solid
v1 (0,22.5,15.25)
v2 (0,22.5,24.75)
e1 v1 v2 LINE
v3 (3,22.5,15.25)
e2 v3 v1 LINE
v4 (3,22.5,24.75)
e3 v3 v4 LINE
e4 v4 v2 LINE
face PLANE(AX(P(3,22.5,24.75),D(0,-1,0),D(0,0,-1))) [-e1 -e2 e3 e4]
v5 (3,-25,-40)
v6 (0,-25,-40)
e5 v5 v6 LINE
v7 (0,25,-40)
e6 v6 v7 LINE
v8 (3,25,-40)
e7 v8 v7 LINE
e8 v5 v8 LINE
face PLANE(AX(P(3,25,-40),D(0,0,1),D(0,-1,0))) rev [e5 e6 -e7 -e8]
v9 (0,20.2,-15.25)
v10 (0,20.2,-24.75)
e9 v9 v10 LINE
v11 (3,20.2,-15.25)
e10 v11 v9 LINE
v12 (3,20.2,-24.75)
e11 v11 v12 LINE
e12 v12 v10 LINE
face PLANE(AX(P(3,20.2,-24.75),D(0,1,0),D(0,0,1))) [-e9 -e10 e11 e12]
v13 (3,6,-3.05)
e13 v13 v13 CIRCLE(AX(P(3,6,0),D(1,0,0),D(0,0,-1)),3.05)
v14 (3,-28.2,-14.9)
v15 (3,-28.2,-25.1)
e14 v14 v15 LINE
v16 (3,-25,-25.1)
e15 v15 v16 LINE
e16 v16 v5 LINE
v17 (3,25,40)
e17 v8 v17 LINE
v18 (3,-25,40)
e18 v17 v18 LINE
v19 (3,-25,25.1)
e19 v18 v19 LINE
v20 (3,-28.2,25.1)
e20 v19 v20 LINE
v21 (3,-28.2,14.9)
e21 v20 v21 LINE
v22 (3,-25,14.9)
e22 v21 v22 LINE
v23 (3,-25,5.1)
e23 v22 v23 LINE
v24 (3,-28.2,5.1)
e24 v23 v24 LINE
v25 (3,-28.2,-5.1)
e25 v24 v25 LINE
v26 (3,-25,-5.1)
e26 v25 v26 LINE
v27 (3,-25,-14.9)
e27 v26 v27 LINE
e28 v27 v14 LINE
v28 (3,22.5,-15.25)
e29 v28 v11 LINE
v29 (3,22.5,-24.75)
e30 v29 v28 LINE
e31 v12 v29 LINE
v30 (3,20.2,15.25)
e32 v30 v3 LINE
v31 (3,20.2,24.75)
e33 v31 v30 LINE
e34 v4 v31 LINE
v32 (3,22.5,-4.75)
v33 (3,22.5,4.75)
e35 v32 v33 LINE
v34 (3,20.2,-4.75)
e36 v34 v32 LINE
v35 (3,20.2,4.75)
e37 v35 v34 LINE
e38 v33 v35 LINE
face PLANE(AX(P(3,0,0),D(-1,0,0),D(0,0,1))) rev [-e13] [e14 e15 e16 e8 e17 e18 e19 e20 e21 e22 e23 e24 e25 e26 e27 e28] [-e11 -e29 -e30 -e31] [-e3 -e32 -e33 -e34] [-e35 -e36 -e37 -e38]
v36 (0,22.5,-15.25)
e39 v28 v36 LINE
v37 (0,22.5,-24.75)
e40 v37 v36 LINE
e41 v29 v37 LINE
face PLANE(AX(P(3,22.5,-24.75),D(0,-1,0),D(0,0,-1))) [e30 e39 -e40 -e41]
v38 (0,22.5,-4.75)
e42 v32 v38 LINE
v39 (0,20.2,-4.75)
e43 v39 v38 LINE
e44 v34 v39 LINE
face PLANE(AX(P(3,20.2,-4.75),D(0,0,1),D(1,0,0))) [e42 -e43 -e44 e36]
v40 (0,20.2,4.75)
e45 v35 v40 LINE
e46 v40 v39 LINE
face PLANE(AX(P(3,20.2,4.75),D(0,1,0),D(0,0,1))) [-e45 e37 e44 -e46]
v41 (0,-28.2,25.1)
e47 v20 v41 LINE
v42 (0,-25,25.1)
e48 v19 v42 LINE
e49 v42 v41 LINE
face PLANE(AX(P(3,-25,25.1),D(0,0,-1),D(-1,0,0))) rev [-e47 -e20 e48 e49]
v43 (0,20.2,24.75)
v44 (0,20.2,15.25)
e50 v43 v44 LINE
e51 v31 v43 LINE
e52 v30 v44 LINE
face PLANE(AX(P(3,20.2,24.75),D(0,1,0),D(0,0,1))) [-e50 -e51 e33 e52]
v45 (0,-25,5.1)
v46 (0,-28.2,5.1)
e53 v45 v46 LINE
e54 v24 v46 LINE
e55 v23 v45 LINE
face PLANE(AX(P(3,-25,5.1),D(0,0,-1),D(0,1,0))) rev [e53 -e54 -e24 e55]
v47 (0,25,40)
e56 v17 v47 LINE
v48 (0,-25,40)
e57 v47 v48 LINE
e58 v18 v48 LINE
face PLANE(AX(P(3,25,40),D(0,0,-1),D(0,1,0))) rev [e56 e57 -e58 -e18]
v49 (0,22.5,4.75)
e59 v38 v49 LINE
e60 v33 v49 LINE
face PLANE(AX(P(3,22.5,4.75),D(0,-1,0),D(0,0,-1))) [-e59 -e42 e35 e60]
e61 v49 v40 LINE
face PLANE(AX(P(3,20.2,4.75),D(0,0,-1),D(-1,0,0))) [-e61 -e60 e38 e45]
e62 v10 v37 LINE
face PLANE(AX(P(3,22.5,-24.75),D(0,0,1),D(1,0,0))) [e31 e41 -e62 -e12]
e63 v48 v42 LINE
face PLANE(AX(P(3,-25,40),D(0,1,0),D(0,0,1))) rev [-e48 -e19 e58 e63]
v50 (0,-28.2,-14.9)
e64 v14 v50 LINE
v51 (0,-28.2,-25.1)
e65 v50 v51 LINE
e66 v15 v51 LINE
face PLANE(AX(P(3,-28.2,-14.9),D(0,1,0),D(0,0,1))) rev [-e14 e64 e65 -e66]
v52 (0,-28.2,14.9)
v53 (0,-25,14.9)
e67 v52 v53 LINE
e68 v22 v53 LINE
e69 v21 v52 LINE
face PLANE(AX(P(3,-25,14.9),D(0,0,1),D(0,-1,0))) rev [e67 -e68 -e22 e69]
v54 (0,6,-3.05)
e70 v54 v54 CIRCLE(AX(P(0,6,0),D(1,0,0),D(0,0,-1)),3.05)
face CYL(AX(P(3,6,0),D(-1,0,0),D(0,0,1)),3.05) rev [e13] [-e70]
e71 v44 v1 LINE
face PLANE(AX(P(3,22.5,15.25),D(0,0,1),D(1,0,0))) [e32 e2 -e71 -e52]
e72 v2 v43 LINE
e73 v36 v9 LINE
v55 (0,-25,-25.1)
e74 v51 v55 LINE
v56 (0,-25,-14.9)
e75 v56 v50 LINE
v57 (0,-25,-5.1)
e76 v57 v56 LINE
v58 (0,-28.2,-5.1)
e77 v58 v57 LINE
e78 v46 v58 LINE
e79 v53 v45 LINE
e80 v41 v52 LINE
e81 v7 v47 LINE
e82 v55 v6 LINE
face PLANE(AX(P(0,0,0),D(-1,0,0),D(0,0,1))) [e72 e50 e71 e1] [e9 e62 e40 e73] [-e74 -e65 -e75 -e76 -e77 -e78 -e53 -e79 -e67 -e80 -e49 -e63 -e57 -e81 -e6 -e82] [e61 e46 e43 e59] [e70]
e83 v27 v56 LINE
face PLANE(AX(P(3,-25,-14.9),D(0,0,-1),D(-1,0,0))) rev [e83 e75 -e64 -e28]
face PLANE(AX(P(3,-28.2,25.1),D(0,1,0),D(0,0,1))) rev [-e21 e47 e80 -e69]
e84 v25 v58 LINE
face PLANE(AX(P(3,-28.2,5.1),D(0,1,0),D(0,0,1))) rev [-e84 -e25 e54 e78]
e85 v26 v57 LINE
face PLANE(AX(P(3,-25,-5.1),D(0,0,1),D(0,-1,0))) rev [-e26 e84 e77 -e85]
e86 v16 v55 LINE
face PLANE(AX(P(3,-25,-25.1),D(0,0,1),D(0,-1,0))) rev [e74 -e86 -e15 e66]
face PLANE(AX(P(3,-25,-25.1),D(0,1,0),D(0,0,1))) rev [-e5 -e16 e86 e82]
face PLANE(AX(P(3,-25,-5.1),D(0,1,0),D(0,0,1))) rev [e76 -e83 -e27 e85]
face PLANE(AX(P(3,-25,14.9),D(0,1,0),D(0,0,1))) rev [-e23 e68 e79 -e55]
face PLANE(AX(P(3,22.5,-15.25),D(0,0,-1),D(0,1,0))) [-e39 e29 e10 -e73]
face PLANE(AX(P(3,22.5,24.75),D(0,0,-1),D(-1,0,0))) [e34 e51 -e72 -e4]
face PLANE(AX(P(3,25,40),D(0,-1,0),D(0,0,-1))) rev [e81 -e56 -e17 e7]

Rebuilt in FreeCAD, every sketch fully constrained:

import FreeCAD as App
import Part
import Sketcher
from FreeCAD import Vector


def add_polygon(sketch, points):
    """Adds a closed chain of lines whose ends are joined by coincident constraints."""
    first, n = sketch.GeometryCount, len(points)
    for a, b in zip(points, points[1:] + points[:1]):
        sketch.addGeometry(Part.LineSegment(App.Vector(*a, 0), App.Vector(*b, 0)), False)
    for i in range(n):
        sketch.addConstraint(Sketcher.Constraint("Coincident", first + i, 2, first + (i + 1) % n, 1))

doc = App.newDocument("Part")
params = doc.addObject("Spreadsheet::Sheet", "Params")
for row, (alias, value) in enumerate([
    ("sketch1_diameter", "6.1 mm"),
    ("sketch1_width", "50 mm"),
    ("sketch1_height", "80 mm"),
    ("sketch1_width2", "3.2 mm"),
    ("sketch1_width3", "2.3 mm"),
    ("pad1_length", "3 mm"),
], start=1):
    params.set(f"A{row}", alias)
    params.set(f"B{row}", "=" + value)
    params.setAlias(f"B{row}", alias)

body = doc.addObject("PartDesign::Body", "Body")

# Sketch on YZ plane
sketch1 = body.newObject("Sketcher::SketchObject", "Sketch")
sketch1.AttachmentSupport = (doc.getObject("YZ_Plane"), [""])
sketch1.MapMode = "FlatFace"
add_polygon(sketch1, [(-25, 14.9), (-25, 5.1), (-28.2, 5.1), (-28.2, -5.1), (-25, -5.1), (-25, -14.9), (-28.2, -14.9), (-28.2, -25.1), (-25, -25.1), (-25, -40), (25, -40), (25, 40), (-25, 40), (-25, 25.1), (-28.2, 25.1), (-28.2, 14.9)])  # lines 0-15
sketch1.addGeometry(Part.Circle(Vector(6, 0, 0), Vector(0, 0, 1), 3), False)  # 16
add_polygon(sketch1, [(20.2, 15.2), (20.2, 24.8), (22.5, 24.8), (22.5, 15.2)])  # lines 17-20
add_polygon(sketch1, [(20.2, -4.8), (20.2, 4.8), (22.5, 4.8), (22.5, -4.8)])  # lines 21-24
add_polygon(sketch1, [(20.2, -24.8), (20.2, -15.2), (22.5, -15.2), (22.5, -24.8)])  # lines 25-28
sketch1.addConstraint(Sketcher.Constraint("Vertical", 0))
sketch1.addConstraint(Sketcher.Constraint("Horizontal", 1))
sketch1.addConstraint(Sketcher.Constraint("Vertical", 2))
sketch1.addConstraint(Sketcher.Constraint("Horizontal", 3))
sketch1.addConstraint(Sketcher.Constraint("Vertical", 4))
sketch1.addConstraint(Sketcher.Constraint("Horizontal", 5))
sketch1.addConstraint(Sketcher.Constraint("Vertical", 6))
sketch1.addConstraint(Sketcher.Constraint("Horizontal", 7))
sketch1.addConstraint(Sketcher.Constraint("Vertical", 8))
sketch1.addConstraint(Sketcher.Constraint("Horizontal", 9))
sketch1.addConstraint(Sketcher.Constraint("Vertical", 10))
sketch1.addConstraint(Sketcher.Constraint("Horizontal", 11))
sketch1.addConstraint(Sketcher.Constraint("Vertical", 12))
sketch1.addConstraint(Sketcher.Constraint("Horizontal", 13))
sketch1.addConstraint(Sketcher.Constraint("Vertical", 14))
sketch1.addConstraint(Sketcher.Constraint("Horizontal", 15))
sketch1.addConstraint(Sketcher.Constraint("Vertical", 17))
sketch1.addConstraint(Sketcher.Constraint("Horizontal", 18))
sketch1.addConstraint(Sketcher.Constraint("Vertical", 19))
sketch1.addConstraint(Sketcher.Constraint("Horizontal", 20))
sketch1.addConstraint(Sketcher.Constraint("Vertical", 21))
sketch1.addConstraint(Sketcher.Constraint("Horizontal", 22))
sketch1.addConstraint(Sketcher.Constraint("Vertical", 23))
sketch1.addConstraint(Sketcher.Constraint("Horizontal", 24))
sketch1.addConstraint(Sketcher.Constraint("Vertical", 25))
sketch1.addConstraint(Sketcher.Constraint("Horizontal", 26))
sketch1.addConstraint(Sketcher.Constraint("Vertical", 27))
sketch1.addConstraint(Sketcher.Constraint("Horizontal", 28))
sketch1.addConstraint(Sketcher.Constraint("Symmetric", 8, 2, 10, 2, -1, 1))
sketch1.addConstraint(Sketcher.Constraint("Symmetric", 0, 2, 3, 2, -1))
sketch1.addConstraint(Sketcher.Constraint("Symmetric", 7, 2, 12, 2, -1))
sketch1.addConstraint(Sketcher.Constraint("Symmetric", 5, 2, 14, 2, -1))
sketch1.addConstraint(Sketcher.Constraint("Symmetric", 20, 2, 25, 2, -1))
sketch1.addConstraint(Sketcher.Constraint("Symmetric", 18, 2, 27, 2, -1))
sketch1.addConstraint(Sketcher.Constraint("PointOnObject", 16, 3, -1))
sketch1.addConstraint(Sketcher.Constraint("Vertical", 2, 2, 5, 2))
sketch1.addConstraint(Sketcher.Constraint("Vertical", 4, 2, 7, 2))
sketch1.addConstraint(Sketcher.Constraint("Vertical", 20, 2, 21, 2))
sketch1.addConstraint(Sketcher.Constraint("Vertical", 19, 2, 22, 2))
sketch1.addConstraint(Sketcher.Constraint("Equal", 2, 6))
sketch1.addConstraint(Sketcher.Constraint("Equal", 19, 21))
sketch1.addConstraint(Sketcher.Constraint("Diameter", 16, 6.1))
sketch1.addConstraint(Sketcher.Constraint("DistanceX", 9, 1, 9, 2, 50.0))
sketch1.addConstraint(Sketcher.Constraint("DistanceY", 10, 1, 10, 2, 80.0))
sketch1.addConstraint(Sketcher.Constraint("DistanceX", 1, 2, 1, 1, 3.2))
sketch1.addConstraint(Sketcher.Constraint("DistanceX", 18, 1, 18, 2, 2.3))
sketch1.addConstraint(Sketcher.Constraint("DistanceY", 0, 2, 0, 1, 9.8))
sketch1.addConstraint(Sketcher.Constraint("DistanceY", 2, 2, 2, 1, 10.2))
sketch1.addConstraint(Sketcher.Constraint("DistanceY", 17, 1, 17, 2, 9.5))
sketch1.addConstraint(Sketcher.Constraint("DistanceX", -1, 1, 16, 3, 6.0))
sketch1.addConstraint(Sketcher.Constraint("DistanceY", 21, 2, 17, 2, 20.0))
sketch1.addConstraint(Sketcher.Constraint("DistanceY", 25, 2, 21, 2, 20.0))
sketch1.addConstraint(Sketcher.Constraint("DistanceX", -1, 1, 17, 2, 20.2))
sketch1.setExpression("Constraints[69]", "Params.sketch1_diameter")
sketch1.setExpression("Constraints[70]", "Params.sketch1_width")
sketch1.setExpression("Constraints[71]", "Params.sketch1_height")
sketch1.setExpression("Constraints[72]", "Params.sketch1_width2")
sketch1.setExpression("Constraints[73]", "Params.sketch1_width3")
pad1 = body.newObject("PartDesign::Pad", "Pad")
pad1.Profile = sketch1
pad1.setExpression("Length", "Params.pad1_length")

doc.recompute()
